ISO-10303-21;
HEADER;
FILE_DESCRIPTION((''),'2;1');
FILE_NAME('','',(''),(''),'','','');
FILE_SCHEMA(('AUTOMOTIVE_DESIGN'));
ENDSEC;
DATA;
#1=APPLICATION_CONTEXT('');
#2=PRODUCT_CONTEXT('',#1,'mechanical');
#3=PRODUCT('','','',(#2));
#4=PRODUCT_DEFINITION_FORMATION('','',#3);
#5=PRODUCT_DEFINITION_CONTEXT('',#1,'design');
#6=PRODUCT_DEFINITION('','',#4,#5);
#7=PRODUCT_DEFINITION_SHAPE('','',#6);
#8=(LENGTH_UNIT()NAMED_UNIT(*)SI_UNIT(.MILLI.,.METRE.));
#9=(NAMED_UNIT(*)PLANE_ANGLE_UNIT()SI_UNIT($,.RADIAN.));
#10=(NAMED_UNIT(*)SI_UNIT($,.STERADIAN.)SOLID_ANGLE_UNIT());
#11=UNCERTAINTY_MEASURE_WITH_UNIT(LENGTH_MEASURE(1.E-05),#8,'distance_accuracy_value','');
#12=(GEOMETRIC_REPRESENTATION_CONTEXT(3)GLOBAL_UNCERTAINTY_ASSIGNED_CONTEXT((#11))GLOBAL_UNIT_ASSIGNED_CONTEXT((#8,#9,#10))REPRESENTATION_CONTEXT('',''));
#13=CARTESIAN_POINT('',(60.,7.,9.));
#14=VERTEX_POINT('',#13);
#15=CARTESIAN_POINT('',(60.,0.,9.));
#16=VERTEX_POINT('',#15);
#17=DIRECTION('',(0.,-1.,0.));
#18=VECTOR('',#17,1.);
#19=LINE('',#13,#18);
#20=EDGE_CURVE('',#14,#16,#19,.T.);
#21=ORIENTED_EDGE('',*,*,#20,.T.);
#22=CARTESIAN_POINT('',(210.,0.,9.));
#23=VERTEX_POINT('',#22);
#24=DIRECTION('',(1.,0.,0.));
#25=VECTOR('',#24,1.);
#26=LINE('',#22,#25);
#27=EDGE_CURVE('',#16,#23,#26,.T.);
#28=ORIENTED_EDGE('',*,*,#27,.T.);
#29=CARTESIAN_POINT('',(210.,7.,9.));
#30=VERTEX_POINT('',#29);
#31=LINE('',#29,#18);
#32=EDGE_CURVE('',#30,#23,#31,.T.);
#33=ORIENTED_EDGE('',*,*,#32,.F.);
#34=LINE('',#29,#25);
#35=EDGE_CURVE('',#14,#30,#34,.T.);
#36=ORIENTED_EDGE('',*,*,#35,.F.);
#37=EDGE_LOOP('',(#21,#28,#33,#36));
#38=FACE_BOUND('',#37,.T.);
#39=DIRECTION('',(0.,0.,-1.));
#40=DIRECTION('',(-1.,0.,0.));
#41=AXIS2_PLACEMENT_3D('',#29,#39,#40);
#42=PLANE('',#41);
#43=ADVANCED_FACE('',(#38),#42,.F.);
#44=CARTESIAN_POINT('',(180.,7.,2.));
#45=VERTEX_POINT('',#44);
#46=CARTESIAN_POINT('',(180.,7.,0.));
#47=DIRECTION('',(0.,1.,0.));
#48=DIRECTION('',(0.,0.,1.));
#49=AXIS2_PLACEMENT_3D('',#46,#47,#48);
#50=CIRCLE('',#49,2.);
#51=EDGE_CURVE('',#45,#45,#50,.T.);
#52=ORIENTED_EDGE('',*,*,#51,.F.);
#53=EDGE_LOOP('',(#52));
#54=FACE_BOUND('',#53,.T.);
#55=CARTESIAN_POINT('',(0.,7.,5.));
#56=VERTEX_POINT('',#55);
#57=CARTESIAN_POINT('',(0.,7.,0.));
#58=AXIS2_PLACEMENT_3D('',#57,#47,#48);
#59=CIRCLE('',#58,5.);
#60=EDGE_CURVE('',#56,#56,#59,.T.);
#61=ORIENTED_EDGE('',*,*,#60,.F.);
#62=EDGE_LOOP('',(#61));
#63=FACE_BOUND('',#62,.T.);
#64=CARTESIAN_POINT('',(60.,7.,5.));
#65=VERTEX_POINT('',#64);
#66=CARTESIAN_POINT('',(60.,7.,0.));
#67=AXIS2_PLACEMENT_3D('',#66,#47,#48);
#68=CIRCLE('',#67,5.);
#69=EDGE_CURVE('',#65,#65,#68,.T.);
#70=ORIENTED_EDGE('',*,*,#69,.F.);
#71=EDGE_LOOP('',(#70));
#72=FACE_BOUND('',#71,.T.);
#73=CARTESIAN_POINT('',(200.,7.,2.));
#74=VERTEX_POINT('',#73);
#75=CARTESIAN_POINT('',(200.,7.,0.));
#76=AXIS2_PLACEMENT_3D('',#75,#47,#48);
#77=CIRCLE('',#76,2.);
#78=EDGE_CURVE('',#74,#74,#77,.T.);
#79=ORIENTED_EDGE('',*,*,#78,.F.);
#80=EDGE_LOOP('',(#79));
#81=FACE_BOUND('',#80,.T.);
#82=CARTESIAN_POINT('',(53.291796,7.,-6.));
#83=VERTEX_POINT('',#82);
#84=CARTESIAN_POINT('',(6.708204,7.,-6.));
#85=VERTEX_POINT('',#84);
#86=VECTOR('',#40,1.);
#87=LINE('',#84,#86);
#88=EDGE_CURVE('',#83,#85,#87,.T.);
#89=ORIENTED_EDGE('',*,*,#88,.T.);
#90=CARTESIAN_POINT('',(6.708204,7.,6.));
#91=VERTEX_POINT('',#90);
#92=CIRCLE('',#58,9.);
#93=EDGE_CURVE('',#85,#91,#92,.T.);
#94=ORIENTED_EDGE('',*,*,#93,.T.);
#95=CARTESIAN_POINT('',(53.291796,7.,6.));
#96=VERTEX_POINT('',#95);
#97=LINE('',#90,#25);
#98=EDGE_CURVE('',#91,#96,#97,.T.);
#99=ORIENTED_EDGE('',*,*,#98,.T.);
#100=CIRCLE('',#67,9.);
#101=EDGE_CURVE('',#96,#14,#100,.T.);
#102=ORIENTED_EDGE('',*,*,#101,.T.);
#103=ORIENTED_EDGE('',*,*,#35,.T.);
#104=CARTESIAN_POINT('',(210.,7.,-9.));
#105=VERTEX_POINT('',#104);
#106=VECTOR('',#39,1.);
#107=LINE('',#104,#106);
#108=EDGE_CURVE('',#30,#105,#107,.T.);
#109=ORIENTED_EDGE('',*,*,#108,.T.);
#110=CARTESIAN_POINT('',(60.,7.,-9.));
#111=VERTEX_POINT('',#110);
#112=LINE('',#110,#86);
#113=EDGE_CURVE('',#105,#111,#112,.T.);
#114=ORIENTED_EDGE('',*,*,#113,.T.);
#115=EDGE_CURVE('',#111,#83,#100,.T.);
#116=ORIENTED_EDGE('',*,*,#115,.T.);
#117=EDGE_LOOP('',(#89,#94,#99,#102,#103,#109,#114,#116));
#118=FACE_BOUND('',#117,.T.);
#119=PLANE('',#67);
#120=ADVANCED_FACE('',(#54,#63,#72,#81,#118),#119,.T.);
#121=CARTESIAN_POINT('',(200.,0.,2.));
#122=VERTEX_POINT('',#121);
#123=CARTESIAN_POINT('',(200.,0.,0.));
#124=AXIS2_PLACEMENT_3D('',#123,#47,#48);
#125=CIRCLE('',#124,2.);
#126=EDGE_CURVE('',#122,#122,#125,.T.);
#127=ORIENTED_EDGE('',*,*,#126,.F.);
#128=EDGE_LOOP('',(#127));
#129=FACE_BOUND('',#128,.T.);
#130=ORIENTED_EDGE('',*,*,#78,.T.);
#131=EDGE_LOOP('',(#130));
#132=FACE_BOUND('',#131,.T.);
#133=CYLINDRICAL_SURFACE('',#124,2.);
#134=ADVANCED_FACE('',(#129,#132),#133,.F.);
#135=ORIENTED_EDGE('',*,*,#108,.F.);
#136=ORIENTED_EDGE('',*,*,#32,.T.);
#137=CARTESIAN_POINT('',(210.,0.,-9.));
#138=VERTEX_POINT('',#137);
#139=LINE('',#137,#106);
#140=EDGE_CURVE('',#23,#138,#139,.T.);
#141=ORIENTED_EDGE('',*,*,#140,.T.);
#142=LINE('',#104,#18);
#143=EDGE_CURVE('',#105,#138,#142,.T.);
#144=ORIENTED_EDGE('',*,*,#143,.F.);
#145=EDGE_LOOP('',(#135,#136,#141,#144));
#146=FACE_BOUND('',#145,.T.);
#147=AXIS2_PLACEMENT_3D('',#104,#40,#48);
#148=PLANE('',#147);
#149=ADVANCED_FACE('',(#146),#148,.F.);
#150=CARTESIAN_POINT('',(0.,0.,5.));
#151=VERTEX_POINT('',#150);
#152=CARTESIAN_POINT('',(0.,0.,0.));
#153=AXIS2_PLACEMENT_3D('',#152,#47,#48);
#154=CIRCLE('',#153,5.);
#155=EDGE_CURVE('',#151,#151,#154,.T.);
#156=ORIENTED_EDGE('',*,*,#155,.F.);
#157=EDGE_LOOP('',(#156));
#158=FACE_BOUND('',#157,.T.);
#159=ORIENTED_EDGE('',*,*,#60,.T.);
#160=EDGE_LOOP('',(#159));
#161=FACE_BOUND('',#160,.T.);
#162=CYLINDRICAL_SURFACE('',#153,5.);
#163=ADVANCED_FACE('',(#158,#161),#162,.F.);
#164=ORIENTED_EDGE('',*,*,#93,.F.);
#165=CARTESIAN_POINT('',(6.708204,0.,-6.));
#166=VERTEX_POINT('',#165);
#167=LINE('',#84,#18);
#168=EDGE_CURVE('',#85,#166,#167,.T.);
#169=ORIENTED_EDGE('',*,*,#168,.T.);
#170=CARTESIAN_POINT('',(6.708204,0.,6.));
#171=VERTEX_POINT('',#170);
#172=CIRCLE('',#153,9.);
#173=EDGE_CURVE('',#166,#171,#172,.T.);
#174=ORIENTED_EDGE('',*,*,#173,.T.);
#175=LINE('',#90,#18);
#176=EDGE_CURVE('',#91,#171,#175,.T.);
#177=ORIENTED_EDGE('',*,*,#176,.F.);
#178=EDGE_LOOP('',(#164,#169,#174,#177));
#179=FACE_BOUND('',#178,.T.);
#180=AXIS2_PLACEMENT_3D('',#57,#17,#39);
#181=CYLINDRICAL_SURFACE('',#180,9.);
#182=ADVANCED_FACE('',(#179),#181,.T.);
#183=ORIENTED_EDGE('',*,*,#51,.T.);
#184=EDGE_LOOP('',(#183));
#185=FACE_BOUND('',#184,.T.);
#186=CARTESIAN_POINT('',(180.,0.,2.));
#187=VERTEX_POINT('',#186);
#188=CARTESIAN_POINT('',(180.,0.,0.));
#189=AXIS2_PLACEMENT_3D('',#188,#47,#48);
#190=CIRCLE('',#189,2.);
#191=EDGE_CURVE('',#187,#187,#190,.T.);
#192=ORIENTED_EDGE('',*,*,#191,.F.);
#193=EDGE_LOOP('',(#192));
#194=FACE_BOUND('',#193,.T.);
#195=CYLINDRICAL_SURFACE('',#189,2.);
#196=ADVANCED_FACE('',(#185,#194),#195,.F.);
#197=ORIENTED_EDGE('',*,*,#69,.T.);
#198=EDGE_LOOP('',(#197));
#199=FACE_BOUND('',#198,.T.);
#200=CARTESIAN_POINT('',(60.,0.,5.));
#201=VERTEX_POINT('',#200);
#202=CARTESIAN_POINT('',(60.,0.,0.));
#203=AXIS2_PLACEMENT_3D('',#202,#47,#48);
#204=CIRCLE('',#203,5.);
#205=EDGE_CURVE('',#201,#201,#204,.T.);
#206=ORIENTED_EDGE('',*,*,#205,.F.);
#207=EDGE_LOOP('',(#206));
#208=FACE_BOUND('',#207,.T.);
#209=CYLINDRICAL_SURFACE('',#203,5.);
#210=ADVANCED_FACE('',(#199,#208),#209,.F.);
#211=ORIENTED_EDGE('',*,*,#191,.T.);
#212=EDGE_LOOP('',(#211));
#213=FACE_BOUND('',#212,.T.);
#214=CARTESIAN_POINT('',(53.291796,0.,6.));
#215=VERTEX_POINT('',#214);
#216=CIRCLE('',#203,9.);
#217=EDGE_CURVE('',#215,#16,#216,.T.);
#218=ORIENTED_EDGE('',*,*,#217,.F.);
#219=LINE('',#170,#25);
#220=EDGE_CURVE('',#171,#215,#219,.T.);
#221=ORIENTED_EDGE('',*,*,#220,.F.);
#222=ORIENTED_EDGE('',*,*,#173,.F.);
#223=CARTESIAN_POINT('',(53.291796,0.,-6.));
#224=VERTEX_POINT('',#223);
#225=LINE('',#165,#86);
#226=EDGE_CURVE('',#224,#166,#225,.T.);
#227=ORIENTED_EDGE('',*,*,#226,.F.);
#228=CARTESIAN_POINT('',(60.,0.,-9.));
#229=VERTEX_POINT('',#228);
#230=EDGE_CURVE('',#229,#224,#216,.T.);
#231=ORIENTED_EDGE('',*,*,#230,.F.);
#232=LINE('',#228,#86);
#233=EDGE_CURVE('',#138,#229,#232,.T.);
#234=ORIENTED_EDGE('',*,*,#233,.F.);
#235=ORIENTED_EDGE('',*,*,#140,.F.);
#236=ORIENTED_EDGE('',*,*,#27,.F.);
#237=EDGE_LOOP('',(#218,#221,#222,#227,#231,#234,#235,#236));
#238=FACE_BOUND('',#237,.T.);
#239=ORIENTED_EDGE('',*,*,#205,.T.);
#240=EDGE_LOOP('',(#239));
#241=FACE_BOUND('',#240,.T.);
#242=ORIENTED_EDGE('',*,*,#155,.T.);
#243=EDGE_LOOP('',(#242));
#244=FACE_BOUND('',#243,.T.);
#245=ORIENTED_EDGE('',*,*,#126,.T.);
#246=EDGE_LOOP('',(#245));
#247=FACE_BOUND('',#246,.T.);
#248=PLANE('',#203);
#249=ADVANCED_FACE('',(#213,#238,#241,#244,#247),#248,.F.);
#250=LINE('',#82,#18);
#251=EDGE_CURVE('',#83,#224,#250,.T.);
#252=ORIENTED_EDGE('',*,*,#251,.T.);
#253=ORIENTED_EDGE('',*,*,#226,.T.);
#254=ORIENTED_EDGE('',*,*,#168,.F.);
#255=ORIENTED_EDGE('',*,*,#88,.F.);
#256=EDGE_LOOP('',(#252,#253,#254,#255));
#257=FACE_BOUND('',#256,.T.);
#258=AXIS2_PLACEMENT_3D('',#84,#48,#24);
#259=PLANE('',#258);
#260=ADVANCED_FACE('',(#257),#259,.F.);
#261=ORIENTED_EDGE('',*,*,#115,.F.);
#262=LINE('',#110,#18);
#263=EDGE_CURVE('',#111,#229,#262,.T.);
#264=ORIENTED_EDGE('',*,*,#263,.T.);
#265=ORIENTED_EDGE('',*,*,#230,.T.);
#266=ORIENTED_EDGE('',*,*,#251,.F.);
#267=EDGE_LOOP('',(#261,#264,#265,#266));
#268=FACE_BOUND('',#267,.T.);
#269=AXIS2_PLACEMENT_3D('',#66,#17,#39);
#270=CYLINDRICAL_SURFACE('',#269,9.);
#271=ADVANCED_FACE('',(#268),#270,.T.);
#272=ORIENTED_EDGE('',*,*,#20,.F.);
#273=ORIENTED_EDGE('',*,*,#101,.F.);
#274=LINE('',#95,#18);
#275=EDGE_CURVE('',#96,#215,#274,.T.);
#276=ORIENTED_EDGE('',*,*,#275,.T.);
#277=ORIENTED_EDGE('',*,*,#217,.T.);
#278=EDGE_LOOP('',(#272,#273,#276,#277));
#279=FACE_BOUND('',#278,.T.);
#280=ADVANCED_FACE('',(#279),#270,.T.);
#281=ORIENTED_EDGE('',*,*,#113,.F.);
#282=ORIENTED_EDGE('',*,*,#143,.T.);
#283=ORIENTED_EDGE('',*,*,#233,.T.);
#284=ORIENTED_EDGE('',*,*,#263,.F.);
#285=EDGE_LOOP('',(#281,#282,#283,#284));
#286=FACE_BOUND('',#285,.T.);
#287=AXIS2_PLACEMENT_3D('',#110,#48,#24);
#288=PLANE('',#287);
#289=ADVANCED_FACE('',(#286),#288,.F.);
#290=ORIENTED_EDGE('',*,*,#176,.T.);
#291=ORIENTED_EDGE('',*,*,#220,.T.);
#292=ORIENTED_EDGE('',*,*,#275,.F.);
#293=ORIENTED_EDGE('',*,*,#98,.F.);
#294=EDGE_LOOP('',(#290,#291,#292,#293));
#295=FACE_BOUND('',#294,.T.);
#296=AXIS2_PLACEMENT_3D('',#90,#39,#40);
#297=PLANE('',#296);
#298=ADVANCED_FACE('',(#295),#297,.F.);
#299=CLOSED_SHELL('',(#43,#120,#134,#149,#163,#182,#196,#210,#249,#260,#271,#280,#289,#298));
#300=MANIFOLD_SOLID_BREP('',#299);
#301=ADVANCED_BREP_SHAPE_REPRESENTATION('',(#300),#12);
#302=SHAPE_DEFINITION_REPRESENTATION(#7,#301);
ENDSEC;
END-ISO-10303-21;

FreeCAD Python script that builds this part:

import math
import FreeCAD as App
import Part
import Sketcher

V = App.Vector
Q = App.Units.Quantity

doc = App.newDocument("Part")
body = doc.addObject("PartDesign::Body", "Body")

# Sketch on XZ plane
sketch1 = doc.addObject("Sketcher::SketchObject", "Sketch")
body.addObject(sketch1)
sketch1.AttachmentSupport = (doc.XZ_Plane, [""])
sketch1.MapMode = "FlatFace"
sketch1.addGeometry([
    Part.LineSegment(V(53, -6, 0), V(7, -6, 0)),  # 0
    Part.ArcOfCircle(Part.Circle(V(0, 0, 0), V(0, 0, 1), 9), math.radians(42), math.radians(318)),  # 1
    Part.LineSegment(V(7, 6, 0), V(53, 6, 0)),  # 2
    Part.ArcOfCircle(Part.Circle(V(60, 0, 0), V(0, 0, 1), 9), math.radians(90), math.radians(138)),  # 3
    Part.LineSegment(V(60, 9, 0), V(210, 9, 0)),  # 4
    Part.LineSegment(V(210, 9, 0), V(210, -9, 0)),  # 5
    Part.LineSegment(V(210, -9, 0), V(60, -9, 0)),  # 6
    Part.ArcOfCircle(Part.Circle(V(60, 0, 0), V(0, 0, 1), 9), math.radians(-138), math.radians(-90)),  # 7
], False)
sketch1.addConstraint([
    Sketcher.Constraint("Coincident", 0, 2, 1, 2),
    Sketcher.Constraint("Coincident", 1, 1, 2, 1),
    Sketcher.Constraint("Coincident", 2, 2, 3, 2),
    Sketcher.Constraint("Tangent", 3, 1, 4, 1),
    Sketcher.Constraint("Coincident", 4, 2, 5, 1),
    Sketcher.Constraint("Coincident", 5, 2, 6, 1),
    Sketcher.Constraint("Tangent", 6, 2, 7, 2),
    Sketcher.Constraint("Coincident", 7, 1, 0, 1),
    Sketcher.Constraint("Horizontal", 0),
    Sketcher.Constraint("Horizontal", 2),
    Sketcher.Constraint("Horizontal", 4),
    Sketcher.Constraint("Vertical", 5),
    Sketcher.Constraint("Horizontal", 6),
    Sketcher.Constraint("Coincident", 1, 3, -1, 1),
    Sketcher.Constraint("Coincident", 7, 3, 3, 3),
    Sketcher.Constraint("Equal", 1, 3),
    Sketcher.Constraint("Equal", 3, 7),
    Sketcher.Constraint("Symmetric", 2, 2, 7, 1, -1),
    Sketcher.Constraint("Radius", 1, Q("9 mm")),
    Sketcher.Constraint("DistanceX", 4, 1, 4, 2, Q("150 mm")),
    Sketcher.Constraint("DistanceX", -1, 1, 3, 3, Q("60 mm")),
    Sketcher.Constraint("DistanceY", 0, 2, -1, 1, Q("6 mm")),
])
pad1 = doc.addObject("PartDesign::Pad", "Pad")
body.addObject(pad1)
pad1.Profile = sketch1
pad1.Length = 7
pad1.Reversed = True

# Sketch on XZ plane
sketch2 = doc.addObject("Sketcher::SketchObject", "Sketch001")
body.addObject(sketch2)
sketch2.AttachmentSupport = (doc.XZ_Plane, [""])
sketch2.MapMode = "FlatFace"
sketch2.AttachmentOffset = App.Placement(V(0, 0, -7), App.Rotation())
sketch2.addGeometry([
    Part.Circle(V(0, 0, 0), V(0, 0, 1), 5),
    Part.Circle(V(60, 0, 0), V(0, 0, 1), 5),
], False)
sketch2.addConstraint([
    Sketcher.Constraint("Coincident", 0, 3, -1, 1),
    Sketcher.Constraint("Equal", 0, 1),
    Sketcher.Constraint("PointOnObject", 1, 3, -1),
    Sketcher.Constraint("Diameter", 0, Q("10 mm")),
    Sketcher.Constraint("DistanceX", -1, 1, 1, 3, Q("60 mm")),
])
pocket1 = doc.addObject("PartDesign::Pocket", "Pocket")
body.addObject(pocket1)
pocket1.Profile = sketch2
pocket1.Type = "ThroughAll"
pocket1.Reversed = True

# Sketch on XZ plane
sketch3 = doc.addObject("Sketcher::SketchObject", "Sketch002")
body.addObject(sketch3)
sketch3.AttachmentSupport = (doc.XZ_Plane, [""])
sketch3.MapMode = "FlatFace"
sketch3.AttachmentOffset = App.Placement(V(0, 0, -7), App.Rotation())
sketch3.addGeometry([
    Part.Circle(V(200, 0, 0), V(0, 0, 1), 2),
    Part.Circle(V(180, 0, 0), V(0, 0, 1), 2),
], False)
sketch3.addConstraint([
    Sketcher.Constraint("Equal", 0, 1),
    Sketcher.Constraint("PointOnObject", 0, 3, -1),
    Sketcher.Constraint("PointOnObject", 1, 3, -1),
    Sketcher.Constraint("Diameter", 0, Q("4 mm")),
    Sketcher.Constraint("DistanceX", -1, 1, 0, 3, Q("200 mm")),
    Sketcher.Constraint("DistanceX", -1, 1, 1, 3, Q("180 mm")),
])
pocket2 = doc.addObject("PartDesign::Pocket", "Pocket001")
body.addObject(pocket2)
pocket2.Profile = sketch3
pocket2.Type = "ThroughAll"
pocket2.Reversed = True

doc.recompute()
